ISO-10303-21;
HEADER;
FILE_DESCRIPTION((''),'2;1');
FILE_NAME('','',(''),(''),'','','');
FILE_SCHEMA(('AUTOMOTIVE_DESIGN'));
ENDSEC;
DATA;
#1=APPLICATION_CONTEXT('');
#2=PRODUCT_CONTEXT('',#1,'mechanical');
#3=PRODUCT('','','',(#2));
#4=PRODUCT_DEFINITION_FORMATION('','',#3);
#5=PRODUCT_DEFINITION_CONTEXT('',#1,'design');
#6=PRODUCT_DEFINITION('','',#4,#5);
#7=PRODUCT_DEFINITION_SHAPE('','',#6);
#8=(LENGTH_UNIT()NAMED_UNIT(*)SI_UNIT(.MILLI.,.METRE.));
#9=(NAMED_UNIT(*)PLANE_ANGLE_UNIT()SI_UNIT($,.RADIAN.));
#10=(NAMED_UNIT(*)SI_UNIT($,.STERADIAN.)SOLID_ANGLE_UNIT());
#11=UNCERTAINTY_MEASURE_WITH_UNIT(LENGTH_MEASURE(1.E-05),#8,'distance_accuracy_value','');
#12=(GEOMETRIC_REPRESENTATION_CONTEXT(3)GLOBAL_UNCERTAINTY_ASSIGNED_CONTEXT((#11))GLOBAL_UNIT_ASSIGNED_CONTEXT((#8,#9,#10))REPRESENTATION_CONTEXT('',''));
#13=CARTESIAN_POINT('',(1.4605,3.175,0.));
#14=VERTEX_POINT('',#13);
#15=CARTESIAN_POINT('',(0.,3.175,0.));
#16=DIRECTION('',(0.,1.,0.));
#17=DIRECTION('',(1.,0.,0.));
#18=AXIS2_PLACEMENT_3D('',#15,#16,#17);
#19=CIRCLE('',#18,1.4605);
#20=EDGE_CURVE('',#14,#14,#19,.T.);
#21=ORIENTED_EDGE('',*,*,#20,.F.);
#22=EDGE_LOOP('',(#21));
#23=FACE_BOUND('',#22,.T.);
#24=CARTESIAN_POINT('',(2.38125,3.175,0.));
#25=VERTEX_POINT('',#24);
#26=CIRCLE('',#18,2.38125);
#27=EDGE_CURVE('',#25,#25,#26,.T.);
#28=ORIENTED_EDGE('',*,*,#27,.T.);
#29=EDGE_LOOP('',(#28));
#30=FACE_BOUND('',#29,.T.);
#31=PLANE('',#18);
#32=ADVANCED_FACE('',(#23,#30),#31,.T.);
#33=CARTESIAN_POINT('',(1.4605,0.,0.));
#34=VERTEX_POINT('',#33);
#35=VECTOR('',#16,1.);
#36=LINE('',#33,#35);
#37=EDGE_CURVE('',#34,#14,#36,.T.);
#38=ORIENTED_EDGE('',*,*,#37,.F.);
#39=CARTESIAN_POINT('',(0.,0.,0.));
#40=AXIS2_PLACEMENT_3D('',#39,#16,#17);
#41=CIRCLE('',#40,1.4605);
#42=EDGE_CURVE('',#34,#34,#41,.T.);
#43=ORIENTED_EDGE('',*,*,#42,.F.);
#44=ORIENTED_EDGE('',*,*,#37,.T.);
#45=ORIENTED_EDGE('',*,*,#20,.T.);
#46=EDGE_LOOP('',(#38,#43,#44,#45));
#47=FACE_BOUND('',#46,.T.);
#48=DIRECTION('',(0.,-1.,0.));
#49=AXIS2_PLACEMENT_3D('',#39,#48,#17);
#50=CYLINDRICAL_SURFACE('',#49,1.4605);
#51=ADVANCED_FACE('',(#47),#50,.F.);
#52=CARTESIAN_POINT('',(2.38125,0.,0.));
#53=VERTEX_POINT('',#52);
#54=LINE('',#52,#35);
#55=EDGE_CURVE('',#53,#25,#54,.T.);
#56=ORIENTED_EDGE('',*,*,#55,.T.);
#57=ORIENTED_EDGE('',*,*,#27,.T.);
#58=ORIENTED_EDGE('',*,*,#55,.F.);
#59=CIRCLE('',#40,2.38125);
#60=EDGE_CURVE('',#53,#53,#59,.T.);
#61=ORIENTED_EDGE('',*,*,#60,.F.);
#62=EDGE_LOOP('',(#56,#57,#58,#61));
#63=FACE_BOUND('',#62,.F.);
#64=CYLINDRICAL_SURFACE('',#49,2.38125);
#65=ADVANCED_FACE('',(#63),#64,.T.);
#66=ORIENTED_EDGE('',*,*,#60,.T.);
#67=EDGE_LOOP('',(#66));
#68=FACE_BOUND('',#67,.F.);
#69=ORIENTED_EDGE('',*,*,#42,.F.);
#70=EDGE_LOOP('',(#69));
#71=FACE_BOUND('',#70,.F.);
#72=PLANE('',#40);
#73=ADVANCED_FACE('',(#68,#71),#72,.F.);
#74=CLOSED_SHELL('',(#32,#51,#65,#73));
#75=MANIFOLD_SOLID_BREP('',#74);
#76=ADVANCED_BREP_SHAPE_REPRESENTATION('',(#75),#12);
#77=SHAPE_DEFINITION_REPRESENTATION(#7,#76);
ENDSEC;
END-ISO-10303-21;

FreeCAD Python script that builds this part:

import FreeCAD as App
import Part
import Sketcher
from FreeCAD import Vector
Q = App.Units.Quantity

doc = App.newDocument("Part")
params = doc.addObject("Spreadsheet::Sheet", "Params")
for row, (alias, value) in enumerate([
    ("sketch1_diameter", "0.1875 in"),
    ("sketch1_diameter2", "0.115 in"),
    ("pad1_length", "0.125 in"),
], start=1):
    params.set(f"A{row}", alias)
    params.set(f"B{row}", "=" + value)
    params.setAlias(f"B{row}", alias)

body = doc.addObject("PartDesign::Body", "Body")

# Sketch on XZ plane
sketch1 = body.newObject("Sketcher::SketchObject", "Sketch")
sketch1.AttachmentSupport = (doc.getObject("XZ_Plane"), [""])
sketch1.MapMode = "FlatFace"
sketch1.addGeometry(Part.Circle(Vector(0, 0, 0), Vector(0, 0, 1), 2.4), False)
sketch1.addGeometry(Part.Circle(Vector(0, 0, 0), Vector(0, 0, 1), 1.5), False)
sketch1.addConstraint(Sketcher.Constraint("Coincident", 0, 3, -1, 1))
sketch1.addConstraint(Sketcher.Constraint("Coincident", 1, 3, -1, 1))
sketch1.addConstraint(Sketcher.Constraint("Diameter", 0, Q("0.1875 in")))
sketch1.addConstraint(Sketcher.Constraint("Diameter", 1, Q("0.115 in")))
sketch1.setExpression("Constraints[2]", "Params.sketch1_diameter")
sketch1.setExpression("Constraints[3]", "Params.sketch1_diameter2")
pad1 = body.newObject("PartDesign::Pad", "Pad")
pad1.Profile = sketch1
pad1.setExpression("Length", "Params.pad1_length")
pad1.Reversed = True

doc.recompute()
